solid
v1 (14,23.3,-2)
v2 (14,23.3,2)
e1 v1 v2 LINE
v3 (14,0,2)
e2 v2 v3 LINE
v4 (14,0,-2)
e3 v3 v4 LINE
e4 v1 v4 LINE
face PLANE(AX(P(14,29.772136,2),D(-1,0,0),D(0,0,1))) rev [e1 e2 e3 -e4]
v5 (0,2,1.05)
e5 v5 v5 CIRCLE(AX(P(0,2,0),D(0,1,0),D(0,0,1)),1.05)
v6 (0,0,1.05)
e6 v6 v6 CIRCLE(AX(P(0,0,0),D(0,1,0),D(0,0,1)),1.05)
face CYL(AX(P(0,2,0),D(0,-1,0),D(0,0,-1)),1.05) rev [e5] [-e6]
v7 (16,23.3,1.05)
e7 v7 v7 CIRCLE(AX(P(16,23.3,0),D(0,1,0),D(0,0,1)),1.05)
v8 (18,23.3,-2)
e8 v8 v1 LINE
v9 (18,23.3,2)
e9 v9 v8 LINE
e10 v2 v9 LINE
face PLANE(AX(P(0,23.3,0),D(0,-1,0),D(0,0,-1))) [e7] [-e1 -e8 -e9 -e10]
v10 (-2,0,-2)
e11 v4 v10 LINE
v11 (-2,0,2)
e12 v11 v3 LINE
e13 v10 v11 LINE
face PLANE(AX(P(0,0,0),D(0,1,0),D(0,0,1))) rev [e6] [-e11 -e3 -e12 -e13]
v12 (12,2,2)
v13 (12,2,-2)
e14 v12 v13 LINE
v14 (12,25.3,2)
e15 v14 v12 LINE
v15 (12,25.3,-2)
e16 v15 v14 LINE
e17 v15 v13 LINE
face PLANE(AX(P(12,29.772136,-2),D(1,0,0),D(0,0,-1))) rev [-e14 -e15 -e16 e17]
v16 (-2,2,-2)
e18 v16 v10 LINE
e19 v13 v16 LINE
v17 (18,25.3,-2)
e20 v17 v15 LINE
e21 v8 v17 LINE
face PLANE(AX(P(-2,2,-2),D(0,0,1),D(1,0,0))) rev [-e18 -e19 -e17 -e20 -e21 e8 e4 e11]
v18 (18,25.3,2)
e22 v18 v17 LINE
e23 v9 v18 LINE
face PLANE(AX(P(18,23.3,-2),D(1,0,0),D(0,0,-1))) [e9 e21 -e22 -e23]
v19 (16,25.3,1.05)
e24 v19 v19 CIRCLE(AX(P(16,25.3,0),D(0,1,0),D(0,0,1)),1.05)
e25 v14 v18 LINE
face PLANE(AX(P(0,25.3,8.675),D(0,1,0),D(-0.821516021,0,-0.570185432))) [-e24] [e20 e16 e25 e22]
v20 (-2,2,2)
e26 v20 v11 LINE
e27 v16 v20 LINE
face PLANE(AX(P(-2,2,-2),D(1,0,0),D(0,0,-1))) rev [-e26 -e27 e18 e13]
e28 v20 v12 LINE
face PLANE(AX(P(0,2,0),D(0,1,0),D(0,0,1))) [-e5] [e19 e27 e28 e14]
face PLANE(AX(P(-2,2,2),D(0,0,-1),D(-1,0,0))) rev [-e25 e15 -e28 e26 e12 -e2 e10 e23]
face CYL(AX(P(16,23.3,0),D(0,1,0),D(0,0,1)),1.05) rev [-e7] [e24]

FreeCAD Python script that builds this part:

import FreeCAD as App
import Part
import Sketcher
Q = App.Units.Quantity


def add_polygon(sketch, points):
    """Adds a closed chain of lines whose ends are joined by coincident constraints."""
    first, n = sketch.GeometryCount, len(points)
    for a, b in zip(points, points[1:] + points[:1]):
        sketch.addGeometry(Part.LineSegment(App.Vector(*a, 0), App.Vector(*b, 0)), False)
    for i in range(n):
        sketch.addConstraint(Sketcher.Constraint("Coincident", first + i, 2, first + (i + 1) % n, 1))

doc = App.newDocument("Part")
body = doc.addObject("PartDesign::Body", "Body")

# Sketch on XZ plane
sketch1 = body.newObject("Sketcher::SketchObject", "Sketch")
sketch1.AttachmentSupport = (doc.getObject("XZ_Plane"), [""])
sketch1.MapMode = "FlatFace"
add_polygon(sketch1, [(-2, -2), (-2, 2), (12, 2), (12, -2)])  # lines 0-3
sketch1.addGeometry(Part.Circle(App.Vector(0, 0, 0), App.Vector(0, 0, 1), 1.1), False)  # 4
sketch1.addConstraint(Sketcher.Constraint("Vertical", 0))
sketch1.addConstraint(Sketcher.Constraint("Horizontal", 1))
sketch1.addConstraint(Sketcher.Constraint("Vertical", 2))
sketch1.addConstraint(Sketcher.Constraint("Horizontal", 3))
sketch1.addConstraint(Sketcher.Constraint("Coincident", 4, 3, -1, 1))
sketch1.addConstraint(Sketcher.Constraint("Diameter", 4, Q("2.1 mm")))
sketch1.addConstraint(Sketcher.Constraint("DistanceX", 1, 1, 1, 2, Q("14 mm")))
sketch1.addConstraint(Sketcher.Constraint("DistanceY", 0, 1, 0, 2, Q("4 mm")))
sketch1.addConstraint(Sketcher.Constraint("DistanceX", 0, 2, -1, 1, Q("2 mm")))
sketch1.addConstraint(Sketcher.Constraint("DistanceY", -1, 1, 0, 2, Q("2 mm")))
pad1 = body.newObject("PartDesign::Pad", "Pad")
pad1.Profile = sketch1
pad1.Length = 2
pad1.Reversed = True

# Sketch on XZ plane
sketch2 = body.newObject("Sketcher::SketchObject", "Sketch001")
sketch2.AttachmentSupport = (doc.getObject("XZ_Plane"), [""])
sketch2.MapMode = "FlatFace"
add_polygon(sketch2, [(12, -2), (12, 2), (14, 2), (14, -2)])  # lines 0-3
sketch2.addConstraint(Sketcher.Constraint("Vertical", 0))
sketch2.addConstraint(Sketcher.Constraint("Horizontal", 1))
sketch2.addConstraint(Sketcher.Constraint("Vertical", 2))
sketch2.addConstraint(Sketcher.Constraint("Horizontal", 3))
sketch2.addConstraint(Sketcher.Constraint("DistanceX", 1, 1, 1, 2, Q("2 mm")))
sketch2.addConstraint(Sketcher.Constraint("DistanceY", 0, 1, 0, 2, Q("4 mm")))
sketch2.addConstraint(Sketcher.Constraint("DistanceX", -1, 1, 0, 2, Q("12 mm")))
sketch2.addConstraint(Sketcher.Constraint("DistanceY", -1, 1, 0, 2, Q("2 mm")))
pad2 = body.newObject("PartDesign::Pad", "Pad001")
pad2.Profile = sketch2
pad2.Length = 25.3
pad2.Reversed = True

# Sketch on XZ plane
sketch3 = body.newObject("Sketcher::SketchObject", "Sketch002")
sketch3.AttachmentSupport = (doc.getObject("XZ_Plane"), [""])
sketch3.MapMode = "FlatFace"
sketch3.AttachmentOffset = App.Placement(App.Vector(0, 0, -25.3), App.Rotation())
add_polygon(sketch3, [(14, -2), (14, 2), (18, 2), (18, -2)])  # lines 0-3
sketch3.addGeometry(Part.Circle(App.Vector(16, 0, 0), App.Vector(0, 0, 1), 1.1), False)  # 4
sketch3.addConstraint(Sketcher.Constraint("Vertical", 0))
sketch3.addConstraint(Sketcher.Constraint("Horizontal", 1))
sketch3.addConstraint(Sketcher.Constraint("Vertical", 2))
sketch3.addConstraint(Sketcher.Constraint("Horizontal", 3))
sketch3.addConstraint(Sketcher.Constraint("PointOnObject", 4, 3, -1))
sketch3.addConstraint(Sketcher.Constraint("Equal", 3, 0))
sketch3.addConstraint(Sketcher.Constraint("Diameter", 4, Q("2.1 mm")))
sketch3.addConstraint(Sketcher.Constraint("DistanceX", 1, 1, 1, 2, Q("4 mm")))
sketch3.addConstraint(Sketcher.Constraint("DistanceX", -1, 1, 4, 3, Q("16 mm")))
sketch3.addConstraint(Sketcher.Constraint("DistanceX", -1, 1, 0, 2, Q("14 mm")))
sketch3.addConstraint(Sketcher.Constraint("DistanceY", -1, 1, 0, 2, Q("2 mm")))
pad3 = body.newObject("PartDesign::Pad", "Pad002")
pad3.Profile = sketch3
pad3.Length = 2

doc.recompute()
